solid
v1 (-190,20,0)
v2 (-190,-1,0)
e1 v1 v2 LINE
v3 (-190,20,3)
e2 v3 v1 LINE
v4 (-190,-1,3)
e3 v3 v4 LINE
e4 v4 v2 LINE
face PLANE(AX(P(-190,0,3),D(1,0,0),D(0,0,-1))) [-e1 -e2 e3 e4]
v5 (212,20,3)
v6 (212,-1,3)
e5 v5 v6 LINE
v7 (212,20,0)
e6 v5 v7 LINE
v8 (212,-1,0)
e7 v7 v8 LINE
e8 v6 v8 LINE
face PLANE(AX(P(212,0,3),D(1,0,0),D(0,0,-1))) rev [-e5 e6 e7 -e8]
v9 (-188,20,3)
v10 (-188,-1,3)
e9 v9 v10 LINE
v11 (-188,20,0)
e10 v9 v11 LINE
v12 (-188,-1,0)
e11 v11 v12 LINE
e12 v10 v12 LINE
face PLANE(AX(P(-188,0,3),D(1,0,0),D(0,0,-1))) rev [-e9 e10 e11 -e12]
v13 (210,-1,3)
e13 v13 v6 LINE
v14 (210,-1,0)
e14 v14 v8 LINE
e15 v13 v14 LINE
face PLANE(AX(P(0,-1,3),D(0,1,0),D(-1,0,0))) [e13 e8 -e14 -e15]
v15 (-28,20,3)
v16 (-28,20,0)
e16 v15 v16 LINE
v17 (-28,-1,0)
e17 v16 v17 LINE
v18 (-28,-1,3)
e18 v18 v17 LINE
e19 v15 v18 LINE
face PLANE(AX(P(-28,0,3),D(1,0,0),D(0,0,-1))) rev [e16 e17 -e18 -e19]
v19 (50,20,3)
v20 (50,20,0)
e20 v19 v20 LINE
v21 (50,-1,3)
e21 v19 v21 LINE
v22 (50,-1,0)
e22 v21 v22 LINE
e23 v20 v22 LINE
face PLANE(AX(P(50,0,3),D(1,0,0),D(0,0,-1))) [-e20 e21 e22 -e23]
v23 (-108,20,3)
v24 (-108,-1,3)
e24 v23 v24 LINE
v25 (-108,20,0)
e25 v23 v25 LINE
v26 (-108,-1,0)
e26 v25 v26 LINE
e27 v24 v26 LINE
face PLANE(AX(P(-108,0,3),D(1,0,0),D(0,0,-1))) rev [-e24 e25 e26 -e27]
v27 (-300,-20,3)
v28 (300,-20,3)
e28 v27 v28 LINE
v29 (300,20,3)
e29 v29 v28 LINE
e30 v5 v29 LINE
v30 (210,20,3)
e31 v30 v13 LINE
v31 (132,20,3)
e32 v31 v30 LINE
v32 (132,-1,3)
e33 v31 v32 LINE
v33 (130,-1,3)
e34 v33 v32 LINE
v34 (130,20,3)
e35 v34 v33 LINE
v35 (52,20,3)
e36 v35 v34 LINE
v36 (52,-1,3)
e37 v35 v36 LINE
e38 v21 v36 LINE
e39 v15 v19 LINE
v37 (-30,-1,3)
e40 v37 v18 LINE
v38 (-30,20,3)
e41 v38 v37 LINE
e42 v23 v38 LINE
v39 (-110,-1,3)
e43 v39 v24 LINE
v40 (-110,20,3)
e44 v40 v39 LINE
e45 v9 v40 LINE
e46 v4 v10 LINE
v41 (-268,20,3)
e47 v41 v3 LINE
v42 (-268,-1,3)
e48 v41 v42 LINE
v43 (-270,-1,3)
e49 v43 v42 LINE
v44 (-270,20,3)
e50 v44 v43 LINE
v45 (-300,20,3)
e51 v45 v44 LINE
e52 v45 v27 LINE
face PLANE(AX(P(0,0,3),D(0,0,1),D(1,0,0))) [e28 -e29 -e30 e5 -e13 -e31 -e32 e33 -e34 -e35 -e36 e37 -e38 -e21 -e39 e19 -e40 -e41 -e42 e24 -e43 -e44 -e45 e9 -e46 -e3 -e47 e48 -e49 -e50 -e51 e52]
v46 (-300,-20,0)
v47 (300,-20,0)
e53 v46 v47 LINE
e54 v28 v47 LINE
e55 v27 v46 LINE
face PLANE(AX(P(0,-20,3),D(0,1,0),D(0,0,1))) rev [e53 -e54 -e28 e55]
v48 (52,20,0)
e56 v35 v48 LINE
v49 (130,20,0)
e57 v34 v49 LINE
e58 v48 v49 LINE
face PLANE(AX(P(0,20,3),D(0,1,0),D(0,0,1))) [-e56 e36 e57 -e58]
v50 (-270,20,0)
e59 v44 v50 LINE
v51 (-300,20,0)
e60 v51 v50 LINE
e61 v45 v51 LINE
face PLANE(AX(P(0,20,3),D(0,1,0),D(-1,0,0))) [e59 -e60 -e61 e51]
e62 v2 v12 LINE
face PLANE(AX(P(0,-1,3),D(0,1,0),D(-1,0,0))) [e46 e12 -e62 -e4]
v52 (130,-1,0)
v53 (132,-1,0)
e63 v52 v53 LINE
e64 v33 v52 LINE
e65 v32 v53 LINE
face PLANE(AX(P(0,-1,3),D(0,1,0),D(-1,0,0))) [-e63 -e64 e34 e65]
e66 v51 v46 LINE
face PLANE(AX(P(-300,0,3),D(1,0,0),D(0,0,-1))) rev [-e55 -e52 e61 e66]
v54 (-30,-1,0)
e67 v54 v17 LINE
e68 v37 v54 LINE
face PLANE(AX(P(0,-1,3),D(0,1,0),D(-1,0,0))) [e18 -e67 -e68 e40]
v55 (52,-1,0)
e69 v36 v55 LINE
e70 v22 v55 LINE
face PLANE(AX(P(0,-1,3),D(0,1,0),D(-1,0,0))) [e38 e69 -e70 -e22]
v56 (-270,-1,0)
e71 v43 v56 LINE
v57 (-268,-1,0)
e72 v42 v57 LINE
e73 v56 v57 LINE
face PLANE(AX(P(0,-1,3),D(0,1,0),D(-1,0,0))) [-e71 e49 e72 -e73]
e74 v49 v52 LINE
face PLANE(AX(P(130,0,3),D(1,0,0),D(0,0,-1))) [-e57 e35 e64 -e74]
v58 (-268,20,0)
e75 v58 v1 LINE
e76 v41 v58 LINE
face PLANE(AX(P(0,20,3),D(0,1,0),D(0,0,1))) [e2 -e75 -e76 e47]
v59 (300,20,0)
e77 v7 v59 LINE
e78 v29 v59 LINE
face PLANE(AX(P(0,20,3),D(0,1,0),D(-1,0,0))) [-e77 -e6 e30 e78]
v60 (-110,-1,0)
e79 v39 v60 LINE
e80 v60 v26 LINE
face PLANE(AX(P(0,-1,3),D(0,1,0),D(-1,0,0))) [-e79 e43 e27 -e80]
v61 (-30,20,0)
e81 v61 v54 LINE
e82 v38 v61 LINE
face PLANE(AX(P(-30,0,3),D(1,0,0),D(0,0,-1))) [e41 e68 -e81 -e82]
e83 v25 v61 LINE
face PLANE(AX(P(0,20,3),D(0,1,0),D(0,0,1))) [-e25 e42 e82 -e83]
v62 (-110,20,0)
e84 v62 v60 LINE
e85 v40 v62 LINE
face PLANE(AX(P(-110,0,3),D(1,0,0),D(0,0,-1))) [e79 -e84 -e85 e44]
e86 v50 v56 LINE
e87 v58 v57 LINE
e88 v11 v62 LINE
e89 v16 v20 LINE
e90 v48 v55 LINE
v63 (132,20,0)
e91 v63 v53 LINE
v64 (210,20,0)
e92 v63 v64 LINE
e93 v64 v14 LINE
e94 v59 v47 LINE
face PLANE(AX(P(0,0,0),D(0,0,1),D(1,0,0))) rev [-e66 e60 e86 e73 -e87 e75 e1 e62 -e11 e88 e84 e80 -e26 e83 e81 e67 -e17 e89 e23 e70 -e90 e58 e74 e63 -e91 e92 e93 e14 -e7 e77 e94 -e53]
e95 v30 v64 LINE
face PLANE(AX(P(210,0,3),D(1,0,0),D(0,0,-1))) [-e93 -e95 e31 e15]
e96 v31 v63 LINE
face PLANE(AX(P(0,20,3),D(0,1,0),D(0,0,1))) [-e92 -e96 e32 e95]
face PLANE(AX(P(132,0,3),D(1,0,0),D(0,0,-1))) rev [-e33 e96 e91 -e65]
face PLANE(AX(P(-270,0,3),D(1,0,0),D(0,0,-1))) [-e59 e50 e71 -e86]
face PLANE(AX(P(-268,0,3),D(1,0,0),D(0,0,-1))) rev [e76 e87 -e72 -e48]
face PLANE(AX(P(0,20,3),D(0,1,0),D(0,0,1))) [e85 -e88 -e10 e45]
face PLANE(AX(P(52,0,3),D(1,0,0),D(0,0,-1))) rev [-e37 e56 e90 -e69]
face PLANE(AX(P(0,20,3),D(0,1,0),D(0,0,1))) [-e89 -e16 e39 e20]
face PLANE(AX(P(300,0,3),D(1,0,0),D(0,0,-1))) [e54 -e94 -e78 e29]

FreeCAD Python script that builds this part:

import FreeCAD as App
import Part
import Sketcher

V = App.Vector
Q = App.Units.Quantity

doc = App.newDocument("Part")
body = doc.addObject("PartDesign::Body", "Body")

sketch1 = body.newObject("Sketcher::SketchObject", "Sketch")
sketch1.AttachmentSupport = (doc.getObject("XY_Plane"), [""])
sketch1.MapMode = "FlatFace"
sketch1.addGeometry([
    Part.LineSegment(V(-190, 20, 0), V(-268, 20, 0)),
    Part.LineSegment(V(-268, 20, 0), V(-268, -1, 0)),
    Part.LineSegment(V(-268, -1, 0), V(-270, -1, 0)),
    Part.LineSegment(V(-270, -1, 0), V(-270, 20, 0)),
    Part.LineSegment(V(-270, 20, 0), V(-300, 20, 0)),
    Part.LineSegment(V(-300, 20, 0), V(-300, -20, 0)),
    Part.LineSegment(V(-300, -20, 0), V(300, -20, 0)),
    Part.LineSegment(V(300, -20, 0), V(300, 20, 0)),
    Part.LineSegment(V(300, 20, 0), V(212, 20, 0)),
    Part.LineSegment(V(212, 20, 0), V(212, -1, 0)),
    Part.LineSegment(V(212, -1, 0), V(210, -1, 0)),
    Part.LineSegment(V(210, -1, 0), V(210, 20, 0)),
    Part.LineSegment(V(210, 20, 0), V(132, 20, 0)),
    Part.LineSegment(V(132, 20, 0), V(132, -1, 0)),
    Part.LineSegment(V(132, -1, 0), V(130, -1, 0)),
    Part.LineSegment(V(130, -1, 0), V(130, 20, 0)),
    Part.LineSegment(V(130, 20, 0), V(52, 20, 0)),
    Part.LineSegment(V(52, 20, 0), V(52, -1, 0)),
    Part.LineSegment(V(52, -1, 0), V(50, -1, 0)),
    Part.LineSegment(V(50, -1, 0), V(50, 20, 0)),
    Part.LineSegment(V(50, 20, 0), V(-28, 20, 0)),
    Part.LineSegment(V(-28, 20, 0), V(-28, -1, 0)),
    Part.LineSegment(V(-28, -1, 0), V(-30, -1, 0)),
    Part.LineSegment(V(-30, -1, 0), V(-30, 20, 0)),
    Part.LineSegment(V(-30, 20, 0), V(-108, 20, 0)),
    Part.LineSegment(V(-108, 20, 0), V(-108, -1, 0)),
    Part.LineSegment(V(-108, -1, 0), V(-110, -1, 0)),
    Part.LineSegment(V(-110, -1, 0), V(-110, 20, 0)),
    Part.LineSegment(V(-110, 20, 0), V(-188, 20, 0)),
    Part.LineSegment(V(-188, 20, 0), V(-188, -1, 0)),
    Part.LineSegment(V(-188, -1, 0), V(-190, -1, 0)),
    Part.LineSegment(V(-190, -1, 0), V(-190, 20, 0)),
], False)
sketch1.addConstraint([
    Sketcher.Constraint("Coincident", 0, 2, 1, 1),
    Sketcher.Constraint("Coincident", 1, 2, 2, 1),
    Sketcher.Constraint("Coincident", 2, 2, 3, 1),
    Sketcher.Constraint("Coincident", 3, 2, 4, 1),
    Sketcher.Constraint("Coincident", 4, 2, 5, 1),
    Sketcher.Constraint("Coincident", 5, 2, 6, 1),
    Sketcher.Constraint("Coincident", 6, 2, 7, 1),
    Sketcher.Constraint("Coincident", 7, 2, 8, 1),
    Sketcher.Constraint("Coincident", 8, 2, 9, 1),
    Sketcher.Constraint("Coincident", 9, 2, 10, 1),
    Sketcher.Constraint("Coincident", 10, 2, 11, 1),
    Sketcher.Constraint("Coincident", 11, 2, 12, 1),
    Sketcher.Constraint("Coincident", 12, 2, 13, 1),
    Sketcher.Constraint("Coincident", 13, 2, 14, 1),
    Sketcher.Constraint("Coincident", 14, 2, 15, 1),
    Sketcher.Constraint("Coincident", 15, 2, 16, 1),
    Sketcher.Constraint("Coincident", 16, 2, 17, 1),
    Sketcher.Constraint("Coincident", 17, 2, 18, 1),
    Sketcher.Constraint("Coincident", 18, 2, 19, 1),
    Sketcher.Constraint("Coincident", 19, 2, 20, 1),
    Sketcher.Constraint("Coincident", 20, 2, 21, 1),
    Sketcher.Constraint("Coincident", 21, 2, 22, 1),
    Sketcher.Constraint("Coincident", 22, 2, 23, 1),
    Sketcher.Constraint("Coincident", 23, 2, 24, 1),
    Sketcher.Constraint("Coincident", 24, 2, 25, 1),
    Sketcher.Constraint("Coincident", 25, 2, 26, 1),
    Sketcher.Constraint("Coincident", 26, 2, 27, 1),
    Sketcher.Constraint("Coincident", 27, 2, 28, 1),
    Sketcher.Constraint("Coincident", 28, 2, 29, 1),
    Sketcher.Constraint("Coincident", 29, 2, 30, 1),
    Sketcher.Constraint("Coincident", 30, 2, 31, 1),
    Sketcher.Constraint("Coincident", 31, 2, 0, 1),
    Sketcher.Constraint("Horizontal", 0),
    Sketcher.Constraint("Vertical", 1),
    Sketcher.Constraint("Horizontal", 2),
    Sketcher.Constraint("Vertical", 3),
    Sketcher.Constraint("Horizontal", 4),
    Sketcher.Constraint("Vertical", 5),
    Sketcher.Constraint("Horizontal", 6),
    Sketcher.Constraint("Vertical", 7),
    Sketcher.Constraint("Horizontal", 8),
    Sketcher.Constraint("Vertical", 9),
    Sketcher.Constraint("Horizontal", 10),
    Sketcher.Constraint("Vertical", 11),
    Sketcher.Constraint("Horizontal", 12),
    Sketcher.Constraint("Vertical", 13),
    Sketcher.Constraint("Horizontal", 14),
    Sketcher.Constraint("Vertical", 15),
    Sketcher.Constraint("Horizontal", 16),
    Sketcher.Constraint("Vertical", 17),
    Sketcher.Constraint("Horizontal", 18),
    Sketcher.Constraint("Vertical", 19),
    Sketcher.Constraint("Horizontal", 20),
    Sketcher.Constraint("Vertical", 21),
    Sketcher.Constraint("Horizontal", 22),
    Sketcher.Constraint("Vertical", 23),
    Sketcher.Constraint("Horizontal", 24),
    Sketcher.Constraint("Vertical", 25),
    Sketcher.Constraint("Horizontal", 26),
    Sketcher.Constraint("Vertical", 27),
    Sketcher.Constraint("Horizontal", 28),
    Sketcher.Constraint("Vertical", 29),
    Sketcher.Constraint("Horizontal", 30),
    Sketcher.Constraint("Vertical", 31),
    Sketcher.Constraint("Symmetric", 4, 2, 6, 2, -1, 1),
    Sketcher.Constraint("Horizontal", 0, 2, 3, 2),
    Sketcher.Constraint("Horizontal", 4, 2, 7, 2),
    Sketcher.Constraint("Horizontal", 2, 2, 9, 2),
    Sketcher.Constraint("Horizontal", 8, 2, 11, 2),
    Sketcher.Constraint("Horizontal", 10, 2, 13, 2),
    Sketcher.Constraint("Horizontal", 12, 2, 15, 2),
    Sketcher.Constraint("Horizontal", 14, 2, 17, 2),
    Sketcher.Constraint("Horizontal", 16, 2, 19, 2),
    Sketcher.Constraint("Horizontal", 18, 2, 21, 2),
    Sketcher.Constraint("Horizontal", 20, 2, 23, 2),
    Sketcher.Constraint("Horizontal", 22, 2, 25, 2),
    Sketcher.Constraint("Horizontal", 24, 2, 27, 2),
    Sketcher.Constraint("Horizontal", 26, 2, 29, 2),
    Sketcher.Constraint("Equal", 2, 10),
    Sketcher.Constraint("Equal", 0, 12),
    Sketcher.Constraint("Equal", 10, 14),
    Sketcher.Constraint("Equal", 12, 16),
    Sketcher.Constraint("Equal", 14, 18),
    Sketcher.Constraint("Equal", 16, 20),
    Sketcher.Constraint("Equal", 18, 22),
    Sketcher.Constraint("Equal", 20, 24),
    Sketcher.Constraint("Equal", 22, 26),
    Sketcher.Constraint("Equal", 24, 28),
    Sketcher.Constraint("Equal", 26, 30),
    Sketcher.Constraint("DistanceX", 0, 2, 0, 1, Q("78 mm")),
    Sketcher.Constraint("DistanceX", 2, 2, 2, 1, Q("2 mm")),
    Sketcher.Constraint("DistanceX", 4, 2, 4, 1, Q("30 mm")),
    Sketcher.Constraint("DistanceX", 6, 1, 6, 2, Q("600 mm")),
    Sketcher.Constraint("DistanceY", 1, 2, 1, 1, Q("21 mm")),
    Sketcher.Constraint("DistanceY", 5, 2, 5, 1, Q("40 mm")),
])
pad1 = body.newObject("PartDesign::Pad", "Pad")
pad1.Profile = sketch1
pad1.Length = 3

doc.recompute()
